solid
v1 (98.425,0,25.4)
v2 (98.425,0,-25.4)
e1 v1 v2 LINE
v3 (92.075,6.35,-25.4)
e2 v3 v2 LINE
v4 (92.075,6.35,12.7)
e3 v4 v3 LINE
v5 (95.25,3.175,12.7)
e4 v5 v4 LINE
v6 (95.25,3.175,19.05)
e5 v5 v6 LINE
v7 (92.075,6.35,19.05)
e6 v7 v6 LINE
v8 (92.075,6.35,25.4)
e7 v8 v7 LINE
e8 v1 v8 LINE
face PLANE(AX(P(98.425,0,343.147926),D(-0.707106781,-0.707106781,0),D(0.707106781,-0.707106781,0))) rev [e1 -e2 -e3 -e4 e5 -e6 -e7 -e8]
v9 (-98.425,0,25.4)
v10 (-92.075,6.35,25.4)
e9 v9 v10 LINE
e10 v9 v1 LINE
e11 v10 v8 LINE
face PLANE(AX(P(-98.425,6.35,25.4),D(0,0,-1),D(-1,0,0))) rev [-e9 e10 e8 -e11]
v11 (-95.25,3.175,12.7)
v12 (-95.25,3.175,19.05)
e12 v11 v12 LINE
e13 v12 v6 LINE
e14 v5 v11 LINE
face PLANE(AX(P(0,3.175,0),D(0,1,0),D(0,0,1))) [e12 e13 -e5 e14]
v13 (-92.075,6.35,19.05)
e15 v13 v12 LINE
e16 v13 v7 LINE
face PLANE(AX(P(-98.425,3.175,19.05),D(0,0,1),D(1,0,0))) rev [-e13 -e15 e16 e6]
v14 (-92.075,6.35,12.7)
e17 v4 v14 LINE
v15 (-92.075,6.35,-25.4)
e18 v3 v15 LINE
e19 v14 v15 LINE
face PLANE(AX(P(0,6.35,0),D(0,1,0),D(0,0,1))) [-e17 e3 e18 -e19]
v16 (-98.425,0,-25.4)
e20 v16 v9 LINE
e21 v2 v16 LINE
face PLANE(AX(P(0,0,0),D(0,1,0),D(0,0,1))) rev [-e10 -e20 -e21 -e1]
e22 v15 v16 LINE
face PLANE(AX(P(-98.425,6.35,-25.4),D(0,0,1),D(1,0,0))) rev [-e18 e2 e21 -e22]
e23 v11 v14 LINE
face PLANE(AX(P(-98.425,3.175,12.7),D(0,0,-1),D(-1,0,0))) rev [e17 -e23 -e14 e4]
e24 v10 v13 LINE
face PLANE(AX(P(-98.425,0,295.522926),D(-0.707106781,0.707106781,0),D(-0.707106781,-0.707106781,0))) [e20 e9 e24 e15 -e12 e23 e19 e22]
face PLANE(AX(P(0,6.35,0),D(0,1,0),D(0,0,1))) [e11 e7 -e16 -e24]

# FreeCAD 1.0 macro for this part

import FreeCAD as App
import Part
import Sketcher
from FreeCAD import Vector
Q = App.Units.Quantity

doc = App.newDocument("Part")
body = doc.addObject("PartDesign::Body", "Body")

sketch1 = body.newObject("Sketcher::SketchObject", "Sketch")
sketch1.AttachmentSupport = (doc.getObject("XZ_Plane"), [""])
sketch1.MapMode = "FlatFace"
sketch1.addGeometry(Part.LineSegment(Vector(-98, -25, 0), Vector(-98, 25, 0)), False)
sketch1.addGeometry(Part.LineSegment(Vector(-98, 25, 0), Vector(98, 25, 0)), False)
sketch1.addGeometry(Part.LineSegment(Vector(98, 25, 0), Vector(98, -25, 0)), False)
sketch1.addGeometry(Part.LineSegment(Vector(98, -25, 0), Vector(-98, -25, 0)), False)
sketch1.addConstraint(Sketcher.Constraint("Coincident", 0, 2, 1, 1))
sketch1.addConstraint(Sketcher.Constraint("Coincident", 1, 2, 2, 1))
sketch1.addConstraint(Sketcher.Constraint("Coincident", 2, 2, 3, 1))
sketch1.addConstraint(Sketcher.Constraint("Coincident", 3, 2, 0, 1))
sketch1.addConstraint(Sketcher.Constraint("Vertical", 0))
sketch1.addConstraint(Sketcher.Constraint("Horizontal", 1))
sketch1.addConstraint(Sketcher.Constraint("Vertical", 2))
sketch1.addConstraint(Sketcher.Constraint("Horizontal", 3))
sketch1.addConstraint(Sketcher.Constraint("Symmetric", 0, 2, 2, 2, -1, 1))
sketch1.addConstraint(Sketcher.Constraint("DistanceY", 0, 1, 0, 2, Q("2 in")))
sketch1.addConstraint(Sketcher.Constraint("DistanceX", 1, 1, 1, 2, Q("7.75 in")))
pad1 = body.newObject("PartDesign::Pad", "Pad")
pad1.Profile = sketch1
pad1.Length = Q("0.25 in")
pad1.Reversed = True

sketch2 = body.newObject("Sketcher::SketchObject", "Sketch001")
sketch2.AttachmentSupport = (doc.getObject("XZ_Plane"), [""])
sketch2.MapMode = "FlatFace"
sketch2.AttachmentOffset = App.Placement(Vector(0, 0, -0.25 * 25.4), App.Rotation())
sketch2.addGeometry(Part.LineSegment(Vector(-98, 13, 0), Vector(-98, 19, 0)), False)
sketch2.addGeometry(Part.LineSegment(Vector(-98, 19, 0), Vector(98, 19, 0)), False)
sketch2.addGeometry(Part.LineSegment(Vector(98, 19, 0), Vector(98, 13, 0)), False)
sketch2.addGeometry(Part.LineSegment(Vector(98, 13, 0), Vector(-98, 13, 0)), False)
sketch2.addConstraint(Sketcher.Constraint("Coincident", 0, 2, 1, 1))
sketch2.addConstraint(Sketcher.Constraint("Coincident", 1, 2, 2, 1))
sketch2.addConstraint(Sketcher.Constraint("Coincident", 2, 2, 3, 1))
sketch2.addConstraint(Sketcher.Constraint("Coincident", 3, 2, 0, 1))
sketch2.addConstraint(Sketcher.Constraint("Vertical", 0))
sketch2.addConstraint(Sketcher.Constraint("Horizontal", 1))
sketch2.addConstraint(Sketcher.Constraint("Vertical", 2))
sketch2.addConstraint(Sketcher.Constraint("Horizontal", 3))
sketch2.addConstraint(Sketcher.Constraint("DistanceX", 1, 1, 1, 2, Q("7.75 in")))
sketch2.addConstraint(Sketcher.Constraint("DistanceY", 0, 1, 0, 2, Q("0.25 in")))
sketch2.addConstraint(Sketcher.Constraint("DistanceY", -1, 1, 2, 2, Q("0.5 in")))
sketch2.addConstraint(Sketcher.Constraint("DistanceX", 0, 2, -1, 1, Q("3.875 in")))
pocket1 = body.newObject("PartDesign::Pocket", "Pocket")
pocket1.Profile = sketch2
pocket1.Length = Q("0.125 in")
pocket1.Reversed = True

sketch3 = body.newObject("Sketcher::SketchObject", "Sketch002")
sketch3.AttachmentSupport = (doc.getObject("XY_Plane"), [""])
sketch3.MapMode = "FlatFace"
sketch3.AttachmentOffset = App.Placement(Vector(0, 0, 1 * 25.4), App.Rotation())
sketch3.addGeometry(Part.LineSegment(Vector(-384, -286, 0), Vector(194, 292, 0)), False)
sketch3.addGeometry(Part.LineSegment(Vector(194, 292, 0), Vector(-378, 863, 0)), False)
sketch3.addGeometry(Part.LineSegment(Vector(-378, 863, 0), Vector(-955, 286, 0)), False)
sketch3.addGeometry(Part.LineSegment(Vector(-955, 286, 0), Vector(-384, -286, 0)), False)
sketch3.addConstraint(Sketcher.Constraint("Coincident", 0, 2, 1, 1))
sketch3.addConstraint(Sketcher.Constraint("Coincident", 1, 2, 2, 1))
sketch3.addConstraint(Sketcher.Constraint("Coincident", 2, 2, 3, 1))
sketch3.addConstraint(Sketcher.Constraint("Coincident", 3, 2, 0, 1))
sketch3.addConstraint(Sketcher.Constraint("Perpendicular", 0, 1))
sketch3.addConstraint(Sketcher.Constraint("Perpendicular", 1, 2))
sketch3.addConstraint(Sketcher.Constraint("Perpendicular", 2, 3))
sketch3.addConstraint(Sketcher.Constraint("Angle", 0, Q("45 deg")))
sketch3.addConstraint(Sketcher.Constraint("DistanceY", 2, 2, 0, 2, Q("0.25 in")))
sketch3.addConstraint(Sketcher.Constraint("Distance", 1, Q("807.809571 mm")))
sketch3.addConstraint(Sketcher.Constraint("DistanceY", -1, 1, 1, 2, Q("863.161438 mm")))
sketch3.addConstraint(Sketcher.Constraint("DistanceX", 2, 2, -1, 1, Q("955.236438 mm")))
pocket2 = body.newObject("PartDesign::Pocket", "Pocket001")
pocket2.Profile = sketch3
pocket2.Type = "ThroughAll"
pocket2.Midplane = True

sketch4 = body.newObject("Sketcher::SketchObject", "Sketch003")
sketch4.AttachmentSupport = (doc.getObject("XY_Plane"), [""])
sketch4.MapMode = "FlatFace"
sketch4.AttachmentOffset = App.Placement(Vector(0, 0, 1 * 25.4), App.Rotation())
sketch4.addGeometry(Part.LineSegment(Vector(-194, 292, 0), Vector(384, -286, 0)), False)
sketch4.addGeometry(Part.LineSegment(Vector(384, -286, 0), Vector(955, 286, 0)), False)
sketch4.addGeometry(Part.LineSegment(Vector(955, 286, 0), Vector(378, 863, 0)), False)
sketch4.addGeometry(Part.LineSegment(Vector(378, 863, 0), Vector(-194, 292, 0)), False)
sketch4.addConstraint(Sketcher.Constraint("Coincident", 0, 2, 1, 1))
sketch4.addConstraint(Sketcher.Constraint("Coincident", 1, 2, 2, 1))
sketch4.addConstraint(Sketcher.Constraint("Coincident", 2, 2, 3, 1))
sketch4.addConstraint(Sketcher.Constraint("Coincident", 3, 2, 0, 1))
sketch4.addConstraint(Sketcher.Constraint("Perpendicular", 0, 1))
sketch4.addConstraint(Sketcher.Constraint("Perpendicular", 1, 2))
sketch4.addConstraint(Sketcher.Constraint("Perpendicular", 2, 3))
sketch4.addConstraint(Sketcher.Constraint("Angle", 0, Q("-45 deg")))
sketch4.addConstraint(Sketcher.Constraint("DistanceX", 2, 2, 0, 2, Q("0.25 in")))
sketch4.addConstraint(Sketcher.Constraint("Distance", 1, Q("807.809571 mm")))
sketch4.addConstraint(Sketcher.Constraint("DistanceX", -1, 1, 1, 2, Q("955.236438 mm")))
sketch4.addConstraint(Sketcher.Constraint("DistanceY", -1, 1, 2, 2, Q("863.161438 mm")))
pocket3 = body.newObject("PartDesign::Pocket", "Pocket002")
pocket3.Profile = sketch4
pocket3.Type = "ThroughAll"
pocket3.Midplane = True

doc.recompute()
